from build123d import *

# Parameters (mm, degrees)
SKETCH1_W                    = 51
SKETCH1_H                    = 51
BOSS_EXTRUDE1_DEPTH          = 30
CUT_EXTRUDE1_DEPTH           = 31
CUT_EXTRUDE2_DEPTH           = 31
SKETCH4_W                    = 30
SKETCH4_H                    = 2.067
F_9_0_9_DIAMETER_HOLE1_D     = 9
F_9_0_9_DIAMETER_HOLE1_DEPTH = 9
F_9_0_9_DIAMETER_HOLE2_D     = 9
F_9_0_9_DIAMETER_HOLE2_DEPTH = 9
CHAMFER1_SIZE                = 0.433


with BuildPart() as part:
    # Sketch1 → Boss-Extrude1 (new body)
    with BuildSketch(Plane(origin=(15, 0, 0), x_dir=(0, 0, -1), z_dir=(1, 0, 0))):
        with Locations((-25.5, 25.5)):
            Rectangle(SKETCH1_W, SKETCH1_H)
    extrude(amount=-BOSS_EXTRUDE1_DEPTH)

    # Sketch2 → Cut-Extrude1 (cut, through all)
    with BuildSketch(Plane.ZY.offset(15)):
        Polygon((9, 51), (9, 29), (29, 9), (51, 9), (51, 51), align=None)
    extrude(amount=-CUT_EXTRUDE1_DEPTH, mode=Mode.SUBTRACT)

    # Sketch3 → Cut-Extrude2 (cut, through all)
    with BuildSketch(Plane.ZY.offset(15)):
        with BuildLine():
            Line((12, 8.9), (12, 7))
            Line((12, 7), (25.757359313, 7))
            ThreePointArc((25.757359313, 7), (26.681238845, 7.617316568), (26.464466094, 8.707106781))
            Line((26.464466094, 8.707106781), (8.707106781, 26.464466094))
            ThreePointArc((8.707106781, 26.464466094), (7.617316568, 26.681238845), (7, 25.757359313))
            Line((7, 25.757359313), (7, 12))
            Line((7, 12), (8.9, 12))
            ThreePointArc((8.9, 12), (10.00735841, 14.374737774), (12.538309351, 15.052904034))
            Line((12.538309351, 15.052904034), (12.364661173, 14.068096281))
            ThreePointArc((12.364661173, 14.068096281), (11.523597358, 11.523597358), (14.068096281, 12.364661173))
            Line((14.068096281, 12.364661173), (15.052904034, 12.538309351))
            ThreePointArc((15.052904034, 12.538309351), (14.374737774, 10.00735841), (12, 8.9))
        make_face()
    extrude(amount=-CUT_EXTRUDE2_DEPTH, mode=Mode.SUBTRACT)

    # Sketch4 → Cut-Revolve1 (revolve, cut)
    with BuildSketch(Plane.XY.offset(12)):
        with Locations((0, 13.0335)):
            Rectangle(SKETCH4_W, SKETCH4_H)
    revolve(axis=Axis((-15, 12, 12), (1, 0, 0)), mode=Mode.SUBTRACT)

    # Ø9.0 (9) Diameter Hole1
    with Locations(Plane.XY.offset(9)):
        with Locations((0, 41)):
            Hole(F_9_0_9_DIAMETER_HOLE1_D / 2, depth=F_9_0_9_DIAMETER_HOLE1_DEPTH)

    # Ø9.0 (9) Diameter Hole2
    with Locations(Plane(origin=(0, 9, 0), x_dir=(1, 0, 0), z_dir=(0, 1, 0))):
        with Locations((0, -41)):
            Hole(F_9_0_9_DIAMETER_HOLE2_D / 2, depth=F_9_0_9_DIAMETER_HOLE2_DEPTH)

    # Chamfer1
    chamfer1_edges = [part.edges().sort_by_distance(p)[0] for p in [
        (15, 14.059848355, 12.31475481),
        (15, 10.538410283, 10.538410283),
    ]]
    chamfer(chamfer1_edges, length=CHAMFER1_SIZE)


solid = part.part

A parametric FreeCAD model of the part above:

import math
import FreeCAD as App
import Part
import Sketcher
Q = App.Units.Quantity


def edges_at(feature, points):
    """Names of the edges that pass closest to the given points."""
    edges = feature.Shape.Edges
    near = lambda p: min(range(len(edges)), key=lambda i: edges[i].distToShape(Part.Vertex(*p))[0])
    return sorted({f"Edge{near(p) + 1}" for p in points})

doc = App.newDocument("Part")
params = doc.addObject("Spreadsheet::Sheet", "Params")
for row, (alias, value) in enumerate([
    ("sketch1_width", "51 mm"),
    ("pad1_length", "30 mm"),
    ("sketch2_width", "22 mm"),
    ("sketch2_width2", "42 mm"),
    ("sketch3_radius", "1 mm"),
    ("sketch3_radius2", "3.1 mm"),
    ("sketch3_radius3", "1.5 mm"),
    ("sketch3_length", "1 mm"),
    ("sketch3_width", "1.9 mm"),
    ("sketch4_width", "30 mm"),
    ("groove_angle", "360 deg"),
    ("sketch5_diameter", "9 mm"),
    ("hole_diameter", "9 mm"),
    ("hole_depth", "9 mm"),
    ("sketch6_diameter", "9 mm"),
    ("hole2_diameter", "9 mm"),
    ("hole2_depth", "9 mm"),
    ("chamfer_size", "0.433 mm"),
], start=1):
    params.set(f"A{row}", alias)
    params.set(f"B{row}", "=" + value)
    params.setAlias(f"B{row}", alias)

body = doc.addObject("PartDesign::Body", "Body")

# Sketch on YZ plane
sketch1 = body.newObject("Sketcher::SketchObject", "Sketch")
sketch1.AttachmentSupport = (doc.getObject("YZ_Plane"), [""])
sketch1.MapMode = "FlatFace"
sketch1.AttachmentOffset = App.Placement(App.Vector(0, 0, 15), App.Rotation())
sketch1.addGeometry([
    Part.LineSegment(App.Vector(51, 51, 0), App.Vector(0, 51, 0)),
    Part.LineSegment(App.Vector(0, 51, 0), App.Vector(0, 0, 0)),
    Part.LineSegment(App.Vector(0, 0, 0), App.Vector(51, 0, 0)),
    Part.LineSegment(App.Vector(51, 0, 0), App.Vector(51, 51, 0)),
], False)
sketch1.addConstraint([
    Sketcher.Constraint("Coincident", 0, 2, 1, 1),
    Sketcher.Constraint("Coincident", 1, 2, 2, 1),
    Sketcher.Constraint("Coincident", 2, 2, 3, 1),
    Sketcher.Constraint("Coincident", 3, 2, 0, 1),
    Sketcher.Constraint("Horizontal", 0),
    Sketcher.Constraint("Vertical", 1),
    Sketcher.Constraint("Horizontal", 2),
    Sketcher.Constraint("Vertical", 3),
    Sketcher.Constraint("Coincident", 1, 2, -1, 1),
    Sketcher.Constraint("Equal", 2, 1),
    Sketcher.Constraint("DistanceX", 0, 2, 0, 1, Q("51 mm")),
])
sketch1.setExpression("Constraints[10]", "Params.sketch1_width")
pad1 = body.newObject("PartDesign::Pad", "Pad")
pad1.Profile = sketch1
pad1.setExpression("Length", "Params.pad1_length")
pad1.Reversed = True

# Sketch on YZ plane
sketch2 = body.newObject("Sketcher::SketchObject", "Sketch001")
sketch2.AttachmentSupport = (doc.getObject("YZ_Plane"), [""])
sketch2.MapMode = "FlatFace"
sketch2.AttachmentOffset = App.Placement(App.Vector(0, 0, -15), App.Rotation())
sketch2.addGeometry([
    Part.LineSegment(App.Vector(51, 9, 0), App.Vector(29, 9, 0)),  # 0
    Part.LineSegment(App.Vector(29, 9, 0), App.Vector(9, 29, 0)),  # 1
    Part.LineSegment(App.Vector(9, 29, 0), App.Vector(9, 51, 0)),  # 2
    Part.LineSegment(App.Vector(9, 51, 0), App.Vector(51, 51, 0)),  # 3
    Part.LineSegment(App.Vector(51, 51, 0), App.Vector(51, 9, 0)),  # 4
], False)
sketch2.addConstraint([
    Sketcher.Constraint("Coincident", 0, 2, 1, 1),
    Sketcher.Constraint("Coincident", 1, 2, 2, 1),
    Sketcher.Constraint("Coincident", 2, 2, 3, 1),
    Sketcher.Constraint("Coincident", 3, 2, 4, 1),
    Sketcher.Constraint("Coincident", 4, 2, 0, 1),
    Sketcher.Constraint("Horizontal", 0),
    Sketcher.Constraint("Vertical", 2),
    Sketcher.Constraint("Horizontal", 3),
    Sketcher.Constraint("Vertical", 4),
    Sketcher.Constraint("Equal", 0, 2),
    Sketcher.Constraint("Equal", 3, 4),
    Sketcher.Constraint("DistanceX", 0, 2, 0, 1, Q("22 mm")),
    Sketcher.Constraint("DistanceX", 3, 1, 3, 2, Q("42 mm")),
    Sketcher.Constraint("DistanceX", -1, 1, 0, 2, Q("29 mm")),
    Sketcher.Constraint("DistanceY", -1, 1, 0, 2, Q("9 mm")),
])
sketch2.setExpression("Constraints[11]", "Params.sketch2_width")
sketch2.setExpression("Constraints[12]", "Params.sketch2_width2")
pocket1 = body.newObject("PartDesign::Pocket", "Pocket")
pocket1.Profile = sketch2
pocket1.Type = "ThroughAll"
pocket1.Reversed = True

# Sketch on YZ plane
sketch3 = body.newObject("Sketcher::SketchObject", "Sketch002")
sketch3.AttachmentSupport = (doc.getObject("YZ_Plane"), [""])
sketch3.MapMode = "FlatFace"
sketch3.AttachmentOffset = App.Placement(App.Vector(0, 0, -15), App.Rotation())
sketch3.addGeometry([
    Part.LineSegment(App.Vector(8.9, 12, 0), App.Vector(7, 12, 0)),  # 0
    Part.LineSegment(App.Vector(7, 12, 0), App.Vector(7, 25.757359, 0)),  # 1
    Part.ArcOfCircle(Part.Circle(App.Vector(8, 25.757359, 0), App.Vector(0, 0, 1), 1), math.radians(45), math.radians(180)),  # 2
    Part.LineSegment(App.Vector(8.707107, 26.464466, 0), App.Vector(26.464466, 8.707107, 0)),  # 3
    Part.ArcOfCircle(Part.Circle(App.Vector(25.757359, 8, 0), App.Vector(0, 0, 1), 1), math.radians(-90), math.radians(45)),  # 4
    Part.LineSegment(App.Vector(25.757359, 7, 0), App.Vector(12, 7, 0)),  # 5
    Part.LineSegment(App.Vector(12, 7, 0), App.Vector(12, 8.9, 0)),  # 6
    Part.ArcOfCircle(Part.Circle(App.Vector(12, 12, 0), App.Vector(0, 0, 1), 3.1), math.radians(-90), math.radians(10)),  # 7
    Part.LineSegment(App.Vector(15.052904, 12.538309, 0), App.Vector(14.068096, 12.364661, 0)),  # 8
    Part.ArcOfCircle(Part.Circle(App.Vector(12.584258, 12.584258, 0), App.Vector(0, 0, 1), 1.5), math.radians(98.418218), math.radians(351.581782)),  # 9
    Part.LineSegment(App.Vector(12.364661, 14.068096, 0), App.Vector(12.538309, 15.052904, 0)),  # 10
    Part.ArcOfCircle(Part.Circle(App.Vector(12, 12, 0), App.Vector(0, 0, 1), 3.1), math.radians(80), math.radians(180)),  # 11
], False)
sketch3.addConstraint([
    Sketcher.Constraint("Coincident", 0, 2, 1, 1),
    Sketcher.Constraint("Tangent", 1, 2, 2, 2),
    Sketcher.Constraint("Tangent", 2, 1, 3, 1),
    Sketcher.Constraint("Tangent", 3, 2, 4, 2),
    Sketcher.Constraint("Tangent", 4, 1, 5, 1),
    Sketcher.Constraint("Coincident", 5, 2, 6, 1),
    Sketcher.Constraint("Coincident", 6, 2, 7, 1),
    Sketcher.Constraint("Coincident", 7, 2, 8, 1),
    Sketcher.Constraint("Coincident", 8, 2, 9, 2),
    Sketcher.Constraint("Coincident", 9, 1, 10, 1),
    Sketcher.Constraint("Coincident", 10, 2, 11, 1),
    Sketcher.Constraint("Coincident", 11, 2, 0, 1),
    Sketcher.Constraint("Horizontal", 0),
    Sketcher.Constraint("Vertical", 1),
    Sketcher.Constraint("Horizontal", 5),
    Sketcher.Constraint("Vertical", 6),
    Sketcher.Constraint("Coincident", 11, 3, 7, 3),
    Sketcher.Constraint("Equal", 2, 4),
    Sketcher.Constraint("Equal", 7, 11),
    Sketcher.Constraint("Horizontal", 11, 3, 0, 2),
    Sketcher.Constraint("Vertical", 11, 3, 5, 2),
    Sketcher.Constraint("Equal", 5, 1),
    Sketcher.Constraint("Equal", 0, 6),
    Sketcher.Constraint("Equal", 8, 10),
    Sketcher.Constraint("Radius", 2, Q("1 mm")),
    Sketcher.Constraint("Radius", 7, Q("3.1 mm")),
    Sketcher.Constraint("Radius", 9, Q("1.5 mm")),
    Sketcher.Constraint("Angle", 8, Q("-170 deg")),
    Sketcher.Constraint("Angle", 10, Q("80 deg")),
    Sketcher.Constraint("Distance", 8, Q("1 mm")),
    Sketcher.Constraint("DistanceX", 0, 2, 0, 1, Q("1.9 mm")),
    Sketcher.Constraint("DistanceX", -1, 1, 2, 3, Q("8 mm")),
    Sketcher.Constraint("DistanceY", -1, 1, 4, 3, Q("8 mm")),
    Sketcher.Constraint("Distance", 3, Q("25.112698 mm")),
    Sketcher.Constraint("DistanceY", 9, 3, 2, 3, Q("13.173102 mm")),
    Sketcher.Constraint("DistanceX", 9, 3, 4, 3, Q("13.173102 mm")),
])
sketch3.setExpression("Constraints[24]", "Params.sketch3_radius")
sketch3.setExpression("Constraints[25]", "Params.sketch3_radius2")
sketch3.setExpression("Constraints[26]", "Params.sketch3_radius3")
sketch3.setExpression("Constraints[29]", "Params.sketch3_length")
sketch3.setExpression("Constraints[30]", "Params.sketch3_width")
pocket2 = body.newObject("PartDesign::Pocket", "Pocket001")
pocket2.Profile = sketch3
pocket2.Type = "ThroughAll"
pocket2.Reversed = True

# Sketch on XY plane
sketch4 = body.newObject("Sketcher::SketchObject", "Sketch003")
sketch4.AttachmentSupport = (doc.getObject("XY_Plane"), [""])
sketch4.MapMode = "FlatFace"
sketch4.AttachmentOffset = App.Placement(App.Vector(0, 0, 12), App.Rotation())
sketch4.addGeometry([
    Part.LineSegment(App.Vector(-15, 14.067, 0), App.Vector(-15, 12, 0)),
    Part.LineSegment(App.Vector(-15, 12, 0), App.Vector(15, 12, 0)),
    Part.LineSegment(App.Vector(15, 12, 0), App.Vector(15, 14.067, 0)),
    Part.LineSegment(App.Vector(15, 14.067, 0), App.Vector(-15, 14.067, 0)),
], False)
sketch4.addGeometry(Part.LineSegment(App.Vector(-15, 12, 0), App.Vector(15, 12, 0)), True)  # axis
sketch4.addConstraint([
    Sketcher.Constraint("Coincident", 0, 2, 1, 1),
    Sketcher.Constraint("Coincident", 1, 2, 2, 1),
    Sketcher.Constraint("Coincident", 2, 2, 3, 1),
    Sketcher.Constraint("Coincident", 3, 2, 0, 1),
    Sketcher.Constraint("Vertical", 0),
    Sketcher.Constraint("Horizontal", 1),
    Sketcher.Constraint("Vertical", 2),
    Sketcher.Constraint("Horizontal", 3),
    Sketcher.Constraint("Horizontal", 4),
    Sketcher.Constraint("Coincident", 4, 1, 0, 2),
    Sketcher.Constraint("Vertical", 2, 2, 4, 2),
    Sketcher.Constraint("DistanceX", 1, 1, 1, 2, Q("30 mm")),
    Sketcher.Constraint("DistanceX", 0, 2, -1, 1, Q("15 mm")),
    Sketcher.Constraint("DistanceY", -1, 1, 0, 2, Q("12 mm")),
    Sketcher.Constraint("DistanceY", 0, 2, 0, 1, Q("2.067 mm")),
])
sketch4.setExpression("Constraints[11]", "Params.sketch4_width")
groove = body.newObject("PartDesign::Groove", "Groove")
groove.Profile = sketch4
groove.ReferenceAxis = (sketch4, ["Axis0"])
groove.setExpression("Angle", "Params.groove_angle")

# Sketch on XY plane
sketch5 = body.newObject("Sketcher::SketchObject", "Sketch004")
sketch5.AttachmentSupport = (doc.getObject("XY_Plane"), [""])
sketch5.MapMode = "FlatFace"
sketch5.AttachmentOffset = App.Placement(App.Vector(0, 0, 9), App.Rotation())
sketch5.addGeometry(Part.Circle(App.Vector(0, 41, 0), App.Vector(0, 0, 1), 4.5), False)
sketch5.addConstraint([
    Sketcher.Constraint("PointOnObject", 0, 3, -2),
    Sketcher.Constraint("Diameter", 0, Q("9 mm")),
    Sketcher.Constraint("DistanceY", -1, 1, 0, 3, Q("41 mm")),
])
sketch5.setExpression("Constraints[1]", "Params.sketch5_diameter")
doc.recompute()
hole = body.newObject("PartDesign::Hole", "Hole")
hole.Profile = sketch5
hole.ThreadType = "None"
hole.setExpression("Diameter", "Params.hole_diameter")
hole.DepthType = "Dimension"
hole.setExpression("Depth", "Params.hole_depth")
hole.DrillPoint = "Flat"

# Sketch on XZ plane
sketch6 = body.newObject("Sketcher::SketchObject", "Sketch005")
sketch6.AttachmentSupport = (doc.getObject("XZ_Plane"), [""])
sketch6.MapMode = "FlatFace"
sketch6.AttachmentOffset = App.Placement(App.Vector(0, 0, -9), App.Rotation())
sketch6.addGeometry(Part.Circle(App.Vector(0, 41, 0), App.Vector(0, 0, 1), 4.5), False)
sketch6.addConstraint([
    Sketcher.Constraint("PointOnObject", 0, 3, -2),
    Sketcher.Constraint("Diameter", 0, Q("9 mm")),
    Sketcher.Constraint("DistanceY", -1, 1, 0, 3, Q("41 mm")),
])
sketch6.setExpression("Constraints[1]", "Params.sketch6_diameter")
doc.recompute()
hole2 = body.newObject("PartDesign::Hole", "Hole001")
hole2.Profile = sketch6
hole2.ThreadType = "None"
hole2.setExpression("Diameter", "Params.hole2_diameter")
hole2.DepthType = "Dimension"
hole2.setExpression("Depth", "Params.hole2_depth")
hole2.DrillPoint = "Flat"
hole2.Reversed = True
doc.recompute()

chamfer = body.newObject("PartDesign::Chamfer", "Chamfer")
chamfer.Base = (hole2, edges_at(hole2, [(15, 14.06, 12.315), (15, 10.538, 10.538)]))
chamfer.setExpression("Size", "Params.chamfer_size")

doc.recompute()
